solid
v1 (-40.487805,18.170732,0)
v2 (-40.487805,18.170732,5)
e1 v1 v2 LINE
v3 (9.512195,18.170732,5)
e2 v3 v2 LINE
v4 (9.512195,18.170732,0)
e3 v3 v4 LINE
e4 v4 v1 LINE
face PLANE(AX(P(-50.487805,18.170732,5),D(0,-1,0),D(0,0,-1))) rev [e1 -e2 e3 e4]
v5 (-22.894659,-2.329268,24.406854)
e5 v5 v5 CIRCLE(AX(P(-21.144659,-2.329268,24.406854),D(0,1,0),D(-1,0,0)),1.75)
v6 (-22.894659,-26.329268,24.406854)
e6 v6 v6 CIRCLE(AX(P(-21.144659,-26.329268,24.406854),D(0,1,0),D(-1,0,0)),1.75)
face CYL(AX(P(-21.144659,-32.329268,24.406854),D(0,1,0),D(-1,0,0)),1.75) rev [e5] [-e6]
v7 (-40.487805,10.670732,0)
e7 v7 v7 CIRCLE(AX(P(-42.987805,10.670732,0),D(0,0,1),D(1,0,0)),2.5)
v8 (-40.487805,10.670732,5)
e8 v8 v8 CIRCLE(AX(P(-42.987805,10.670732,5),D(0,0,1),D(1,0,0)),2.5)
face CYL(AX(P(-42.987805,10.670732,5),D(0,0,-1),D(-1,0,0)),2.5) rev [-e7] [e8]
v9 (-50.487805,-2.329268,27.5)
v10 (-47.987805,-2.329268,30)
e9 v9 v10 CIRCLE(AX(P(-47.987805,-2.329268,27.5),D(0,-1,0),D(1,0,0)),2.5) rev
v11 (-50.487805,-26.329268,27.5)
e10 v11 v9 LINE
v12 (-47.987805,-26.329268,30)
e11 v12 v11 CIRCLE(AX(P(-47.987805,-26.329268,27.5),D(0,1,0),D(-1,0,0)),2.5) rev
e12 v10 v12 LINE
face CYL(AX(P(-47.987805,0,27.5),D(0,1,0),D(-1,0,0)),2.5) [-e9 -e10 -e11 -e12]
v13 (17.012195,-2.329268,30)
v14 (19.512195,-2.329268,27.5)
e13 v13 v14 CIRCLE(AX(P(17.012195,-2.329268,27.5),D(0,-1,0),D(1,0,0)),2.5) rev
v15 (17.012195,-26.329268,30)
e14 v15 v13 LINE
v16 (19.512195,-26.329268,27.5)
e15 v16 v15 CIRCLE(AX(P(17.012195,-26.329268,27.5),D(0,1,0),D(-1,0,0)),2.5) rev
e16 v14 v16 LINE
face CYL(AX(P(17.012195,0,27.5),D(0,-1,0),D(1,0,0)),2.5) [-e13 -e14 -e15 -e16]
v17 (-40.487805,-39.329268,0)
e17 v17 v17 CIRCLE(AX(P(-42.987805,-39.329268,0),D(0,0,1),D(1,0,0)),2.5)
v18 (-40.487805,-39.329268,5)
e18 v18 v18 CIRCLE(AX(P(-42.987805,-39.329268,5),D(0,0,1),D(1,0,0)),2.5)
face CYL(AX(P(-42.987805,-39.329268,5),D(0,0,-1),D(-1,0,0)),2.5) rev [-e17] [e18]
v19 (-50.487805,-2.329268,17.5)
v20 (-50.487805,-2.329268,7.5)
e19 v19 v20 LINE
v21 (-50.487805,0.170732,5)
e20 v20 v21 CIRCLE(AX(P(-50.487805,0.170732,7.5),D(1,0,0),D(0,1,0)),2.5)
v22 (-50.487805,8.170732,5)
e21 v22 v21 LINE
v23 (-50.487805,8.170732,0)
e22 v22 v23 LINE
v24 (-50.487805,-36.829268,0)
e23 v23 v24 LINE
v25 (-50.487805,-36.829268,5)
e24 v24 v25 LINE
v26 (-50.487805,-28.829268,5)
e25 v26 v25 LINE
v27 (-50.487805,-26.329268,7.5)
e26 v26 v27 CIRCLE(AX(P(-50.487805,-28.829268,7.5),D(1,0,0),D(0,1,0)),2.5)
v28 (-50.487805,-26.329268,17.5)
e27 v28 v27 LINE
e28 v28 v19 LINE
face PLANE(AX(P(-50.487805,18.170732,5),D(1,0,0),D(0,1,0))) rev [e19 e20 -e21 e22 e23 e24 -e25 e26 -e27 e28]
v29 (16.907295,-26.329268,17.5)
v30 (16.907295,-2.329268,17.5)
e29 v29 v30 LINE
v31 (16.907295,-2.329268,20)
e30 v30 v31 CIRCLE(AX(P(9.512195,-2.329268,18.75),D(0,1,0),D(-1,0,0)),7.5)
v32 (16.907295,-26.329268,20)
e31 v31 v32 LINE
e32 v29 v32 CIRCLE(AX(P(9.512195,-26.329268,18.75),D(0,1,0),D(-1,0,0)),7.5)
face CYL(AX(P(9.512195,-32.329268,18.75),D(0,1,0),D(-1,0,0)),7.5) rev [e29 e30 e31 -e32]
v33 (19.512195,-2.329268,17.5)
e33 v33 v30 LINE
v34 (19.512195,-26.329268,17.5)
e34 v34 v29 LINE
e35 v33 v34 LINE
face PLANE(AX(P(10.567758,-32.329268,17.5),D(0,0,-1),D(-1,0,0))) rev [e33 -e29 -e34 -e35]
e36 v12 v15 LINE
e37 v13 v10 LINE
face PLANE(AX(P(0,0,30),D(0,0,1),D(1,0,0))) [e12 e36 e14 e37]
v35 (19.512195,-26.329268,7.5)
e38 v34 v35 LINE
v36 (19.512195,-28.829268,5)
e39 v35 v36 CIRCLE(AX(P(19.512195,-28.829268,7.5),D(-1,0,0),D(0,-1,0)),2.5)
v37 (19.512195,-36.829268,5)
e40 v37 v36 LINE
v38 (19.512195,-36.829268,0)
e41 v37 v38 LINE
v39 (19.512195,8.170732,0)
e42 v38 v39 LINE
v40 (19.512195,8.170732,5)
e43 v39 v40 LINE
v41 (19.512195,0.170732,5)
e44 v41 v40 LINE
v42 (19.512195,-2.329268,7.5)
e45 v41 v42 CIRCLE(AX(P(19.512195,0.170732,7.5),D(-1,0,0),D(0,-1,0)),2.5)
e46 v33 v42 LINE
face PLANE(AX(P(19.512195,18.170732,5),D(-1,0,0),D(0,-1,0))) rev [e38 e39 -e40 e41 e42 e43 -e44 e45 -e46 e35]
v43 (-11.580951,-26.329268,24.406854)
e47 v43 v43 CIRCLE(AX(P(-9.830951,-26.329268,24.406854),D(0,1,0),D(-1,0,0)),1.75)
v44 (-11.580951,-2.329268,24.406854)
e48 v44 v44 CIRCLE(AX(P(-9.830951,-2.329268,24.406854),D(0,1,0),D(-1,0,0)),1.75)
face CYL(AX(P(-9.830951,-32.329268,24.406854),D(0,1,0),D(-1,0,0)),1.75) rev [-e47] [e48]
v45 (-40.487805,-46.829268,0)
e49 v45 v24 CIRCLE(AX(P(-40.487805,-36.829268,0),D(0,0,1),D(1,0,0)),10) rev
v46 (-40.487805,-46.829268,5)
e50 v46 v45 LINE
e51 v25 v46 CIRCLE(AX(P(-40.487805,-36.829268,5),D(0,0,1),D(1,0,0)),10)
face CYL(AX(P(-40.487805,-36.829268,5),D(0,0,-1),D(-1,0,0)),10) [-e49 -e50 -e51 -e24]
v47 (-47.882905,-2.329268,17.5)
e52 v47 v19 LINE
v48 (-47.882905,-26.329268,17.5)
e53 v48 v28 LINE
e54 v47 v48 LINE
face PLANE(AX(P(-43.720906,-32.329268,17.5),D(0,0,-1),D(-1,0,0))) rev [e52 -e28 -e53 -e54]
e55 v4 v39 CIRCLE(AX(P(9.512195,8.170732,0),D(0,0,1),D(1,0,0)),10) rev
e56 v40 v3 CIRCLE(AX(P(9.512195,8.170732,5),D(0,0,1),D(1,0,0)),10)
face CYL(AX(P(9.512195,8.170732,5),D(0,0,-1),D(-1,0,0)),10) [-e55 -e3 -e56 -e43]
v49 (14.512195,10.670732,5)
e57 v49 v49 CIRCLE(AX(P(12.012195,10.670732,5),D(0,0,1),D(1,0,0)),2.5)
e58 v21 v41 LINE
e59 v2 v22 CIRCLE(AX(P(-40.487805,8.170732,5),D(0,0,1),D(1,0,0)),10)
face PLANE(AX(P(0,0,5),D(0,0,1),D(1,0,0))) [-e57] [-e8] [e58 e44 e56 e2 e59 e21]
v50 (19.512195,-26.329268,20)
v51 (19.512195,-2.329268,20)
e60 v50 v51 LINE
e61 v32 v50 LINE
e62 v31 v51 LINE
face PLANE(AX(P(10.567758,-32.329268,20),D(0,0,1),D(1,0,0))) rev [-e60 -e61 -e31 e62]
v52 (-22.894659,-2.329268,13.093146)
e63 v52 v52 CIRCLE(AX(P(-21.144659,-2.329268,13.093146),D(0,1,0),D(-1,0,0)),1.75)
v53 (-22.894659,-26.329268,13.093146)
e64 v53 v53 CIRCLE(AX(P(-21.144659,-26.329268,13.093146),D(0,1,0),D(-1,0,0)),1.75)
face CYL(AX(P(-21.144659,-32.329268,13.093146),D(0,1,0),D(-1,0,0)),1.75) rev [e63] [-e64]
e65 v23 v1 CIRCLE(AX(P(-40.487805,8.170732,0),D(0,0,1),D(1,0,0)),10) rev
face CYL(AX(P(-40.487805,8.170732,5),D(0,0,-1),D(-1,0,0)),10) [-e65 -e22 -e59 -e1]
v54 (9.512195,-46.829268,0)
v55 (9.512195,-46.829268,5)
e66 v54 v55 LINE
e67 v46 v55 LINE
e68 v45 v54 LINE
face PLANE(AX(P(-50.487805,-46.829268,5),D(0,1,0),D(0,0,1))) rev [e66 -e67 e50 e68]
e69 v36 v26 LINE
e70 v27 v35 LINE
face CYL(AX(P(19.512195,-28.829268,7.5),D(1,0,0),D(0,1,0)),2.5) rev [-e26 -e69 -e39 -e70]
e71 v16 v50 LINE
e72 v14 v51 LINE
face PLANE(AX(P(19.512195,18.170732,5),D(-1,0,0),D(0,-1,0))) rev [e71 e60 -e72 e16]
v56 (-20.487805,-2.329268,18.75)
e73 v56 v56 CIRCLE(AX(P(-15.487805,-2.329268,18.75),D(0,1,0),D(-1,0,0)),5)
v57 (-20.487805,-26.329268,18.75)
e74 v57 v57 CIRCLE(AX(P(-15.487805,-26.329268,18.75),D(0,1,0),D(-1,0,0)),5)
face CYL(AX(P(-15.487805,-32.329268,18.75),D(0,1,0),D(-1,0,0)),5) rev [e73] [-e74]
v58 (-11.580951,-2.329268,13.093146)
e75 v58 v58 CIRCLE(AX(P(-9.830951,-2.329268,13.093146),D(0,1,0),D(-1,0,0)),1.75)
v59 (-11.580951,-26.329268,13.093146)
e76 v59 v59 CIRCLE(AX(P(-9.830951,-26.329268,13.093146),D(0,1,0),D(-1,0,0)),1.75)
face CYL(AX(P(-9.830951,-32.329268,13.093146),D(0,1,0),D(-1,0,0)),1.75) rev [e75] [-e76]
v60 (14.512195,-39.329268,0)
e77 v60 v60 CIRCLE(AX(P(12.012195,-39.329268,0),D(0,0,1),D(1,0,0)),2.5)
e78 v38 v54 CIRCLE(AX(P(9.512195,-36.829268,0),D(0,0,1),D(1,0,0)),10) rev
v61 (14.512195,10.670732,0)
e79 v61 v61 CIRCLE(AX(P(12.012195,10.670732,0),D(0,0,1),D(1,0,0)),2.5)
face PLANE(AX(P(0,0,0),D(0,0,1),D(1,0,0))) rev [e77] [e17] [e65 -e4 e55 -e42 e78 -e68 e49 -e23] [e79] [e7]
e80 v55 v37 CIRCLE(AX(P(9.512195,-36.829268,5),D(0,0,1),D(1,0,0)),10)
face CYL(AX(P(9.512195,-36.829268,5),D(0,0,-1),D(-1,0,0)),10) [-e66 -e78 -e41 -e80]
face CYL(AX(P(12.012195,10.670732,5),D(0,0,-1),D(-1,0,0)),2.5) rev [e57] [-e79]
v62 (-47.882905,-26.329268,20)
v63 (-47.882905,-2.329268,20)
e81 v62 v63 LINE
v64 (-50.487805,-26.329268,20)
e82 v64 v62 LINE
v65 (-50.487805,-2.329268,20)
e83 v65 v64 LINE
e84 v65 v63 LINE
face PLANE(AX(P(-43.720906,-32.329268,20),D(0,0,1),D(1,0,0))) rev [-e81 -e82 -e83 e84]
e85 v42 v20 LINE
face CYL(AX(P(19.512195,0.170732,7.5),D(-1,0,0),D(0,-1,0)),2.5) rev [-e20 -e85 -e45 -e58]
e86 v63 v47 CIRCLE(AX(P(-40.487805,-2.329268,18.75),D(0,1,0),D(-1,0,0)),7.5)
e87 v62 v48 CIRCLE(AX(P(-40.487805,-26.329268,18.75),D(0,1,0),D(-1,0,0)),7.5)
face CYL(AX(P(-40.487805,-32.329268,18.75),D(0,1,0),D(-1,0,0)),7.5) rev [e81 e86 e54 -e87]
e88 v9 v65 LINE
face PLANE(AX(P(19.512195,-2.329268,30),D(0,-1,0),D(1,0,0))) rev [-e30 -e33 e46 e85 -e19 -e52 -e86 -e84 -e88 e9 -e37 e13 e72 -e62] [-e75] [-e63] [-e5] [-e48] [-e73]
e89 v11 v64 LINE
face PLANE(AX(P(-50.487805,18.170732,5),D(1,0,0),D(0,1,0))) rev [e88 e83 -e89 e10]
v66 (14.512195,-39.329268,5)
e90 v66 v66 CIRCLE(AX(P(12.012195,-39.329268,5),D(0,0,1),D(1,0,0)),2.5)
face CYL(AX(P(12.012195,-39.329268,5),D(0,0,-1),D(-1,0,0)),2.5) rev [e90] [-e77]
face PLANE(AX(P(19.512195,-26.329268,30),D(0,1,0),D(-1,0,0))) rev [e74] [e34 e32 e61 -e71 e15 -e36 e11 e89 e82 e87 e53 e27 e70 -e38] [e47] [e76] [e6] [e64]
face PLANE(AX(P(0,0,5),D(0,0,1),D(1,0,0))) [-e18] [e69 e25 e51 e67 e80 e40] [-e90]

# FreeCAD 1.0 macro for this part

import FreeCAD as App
import Part
import Sketcher
from FreeCAD import Vector


def edges_at(feature, points):
    """Names of the edges that pass closest to the given points."""
    edges = feature.Shape.Edges
    near = lambda p: min(range(len(edges)), key=lambda i: edges[i].distToShape(Part.Vertex(*p))[0])
    return sorted({f"Edge{near(p) + 1}" for p in points})


def add_polygon(sketch, points):
    """Adds a closed chain of lines whose ends are joined by coincident constraints."""
    first, n = sketch.GeometryCount, len(points)
    for a, b in zip(points, points[1:] + points[:1]):
        sketch.addGeometry(Part.LineSegment(App.Vector(*a, 0), App.Vector(*b, 0)), False)
    for i in range(n):
        sketch.addConstraint(Sketcher.Constraint("Coincident", first + i, 2, first + (i + 1) % n, 1))

doc = App.newDocument("Part")
body = doc.addObject("PartDesign::Body", "Body")

# Sketch on XY plane
sketch1 = body.newObject("Sketcher::SketchObject", "Sketch")
sketch1.AttachmentSupport = (doc.getObject("XY_Plane"), [""])
sketch1.MapMode = "FlatFace"
add_polygon(sketch1, [(-50.5, 18.2), (-50.5, -46.8), (19.5, -46.8), (19.5, 18.2)])  # lines 0-3
sketch1.addGeometry(Part.Circle(Vector(-43, -39.3, 0), Vector(0, 0, 1), 2.5), False)  # 4
sketch1.addGeometry(Part.Circle(Vector(12, -39.3, 0), Vector(0, 0, 1), 2.5), False)  # 5
sketch1.addGeometry(Part.Circle(Vector(-43, 10.7, 0), Vector(0, 0, 1), 2.5), False)  # 6
sketch1.addGeometry(Part.Circle(Vector(12, 10.7, 0), Vector(0, 0, 1), 2.5), False)  # 7
sketch1.addConstraint([
    Sketcher.Constraint("Vertical", 0),
    Sketcher.Constraint("Horizontal", 1),
    Sketcher.Constraint("Vertical", 2),
    Sketcher.Constraint("Horizontal", 3),
    Sketcher.Constraint("Equal", 4, 5),
    Sketcher.Constraint("Equal", 5, 6),
    Sketcher.Constraint("Equal", 6, 7),
    Sketcher.Constraint("Horizontal", 4, 3, 5, 3),
    Sketcher.Constraint("Horizontal", 6, 3, 7, 3),
    Sketcher.Constraint("Vertical", 4, 3, 6, 3),
    Sketcher.Constraint("Vertical", 5, 3, 7, 3),
    Sketcher.Constraint("Diameter", 4, 5.0),
    Sketcher.Constraint("DistanceX", 1, 1, 1, 2, 70.0),
    Sketcher.Constraint("DistanceY", 0, 2, 0, 1, 65.0),
    Sketcher.Constraint("DistanceX", 4, 3, 5, 3, 55.0),
    Sketcher.Constraint("DistanceY", 4, 3, 6, 3, 50.0),
    Sketcher.Constraint("DistanceX", 0, 2, 4, 3, 7.5),
    Sketcher.Constraint("DistanceY", 0, 2, 4, 3, 7.5),
    Sketcher.Constraint("DistanceY", 4, 3, -1, 1, 39.329268),
    Sketcher.Constraint("DistanceX", 4, 3, -1, 1, 42.987805),
])
pad1 = body.newObject("PartDesign::Pad", "Pad")
pad1.Profile = sketch1
pad1.Length = 5
doc.recompute()

fillet = body.newObject("PartDesign::Fillet", "Fillet")
fillet.Base = (pad1, edges_at(pad1, [
    (-50.488, 18.171, 2.5),
    (19.512, 18.171, 2.5),
    (19.512, -46.829, 2.5),
    (-50.488, -46.829, 2.5),
]))
fillet.Radius = 10

# Sketch on XY plane
sketch2 = body.newObject("Sketcher::SketchObject", "Sketch001")
sketch2.AttachmentSupport = (doc.getObject("XY_Plane"), [""])
sketch2.MapMode = "FlatFace"
sketch2.AttachmentOffset = App.Placement(Vector(0, 0, 5), App.Rotation())
add_polygon(sketch2, [(-50, -2), (-50, -26), (20, -26), (20, -2)])  # lines 0-3
sketch2.addConstraint([
    Sketcher.Constraint("Vertical", 0),
    Sketcher.Constraint("Horizontal", 1),
    Sketcher.Constraint("Vertical", 2),
    Sketcher.Constraint("Horizontal", 3),
    Sketcher.Constraint("DistanceX", 1, 1, 1, 2, 70.0),
    Sketcher.Constraint("DistanceY", 0, 2, 0, 1, 24.0),
    Sketcher.Constraint("DistanceY", 0, 2, -1, 1, 26.329268),
    Sketcher.Constraint("DistanceX", 0, 2, -1, 1, 50.487805),
])
pad2 = body.newObject("PartDesign::Pad", "Pad001")
pad2.Profile = sketch2
pad2.Length = 25
doc.recompute()

fillet2 = body.newObject("PartDesign::Fillet", "Fillet001")
fillet2.Base = (pad2, edges_at(pad2, [(-15.488, -26.329, 5), (-15.488, -2.329, 5)]))
fillet2.Radius = 2.5

# Sketch on XZ plane
sketch3 = body.newObject("Sketcher::SketchObject", "Sketch002")
sketch3.AttachmentSupport = (doc.getObject("XZ_Plane"), [""])
sketch3.MapMode = "FlatFace"
sketch3.AttachmentOffset = App.Placement(Vector(0, 0, 2.329268), App.Rotation())
sketch3.addGeometry([
    Part.Circle(Vector(-15, 19, 0), Vector(0, 0, 1), 5),
    Part.Circle(Vector(-40, 19, 0), Vector(0, 0, 1), 8),
    Part.Circle(Vector(10, 19, 0), Vector(0, 0, 1), 8),
], False)
sketch3.addConstraint([
    Sketcher.Constraint("Equal", 1, 2),
    Sketcher.Constraint("Horizontal", 0, 3, 1, 3),
    Sketcher.Constraint("Horizontal", 1, 3, 2, 3),
    Sketcher.Constraint("Diameter", 0, 10.0),
    Sketcher.Constraint("Diameter", 1, 15.0),
    Sketcher.Constraint("DistanceX", 1, 3, 0, 3, 25.0),
    Sketcher.Constraint("DistanceX", 0, 3, 2, 3, 25.0),
    Sketcher.Constraint("DistanceY", -1, 1, 0, 3, 18.75),
    Sketcher.Constraint("DistanceX", 0, 3, -1, 1, 15.487805),
])
pocket1 = body.newObject("PartDesign::Pocket", "Pocket")
pocket1.Profile = sketch3
pocket1.Length = 30
pocket1.Reversed = True

# Sketch on XZ plane
sketch4 = body.newObject("Sketcher::SketchObject", "Sketch003")
sketch4.AttachmentSupport = (doc.getObject("XZ_Plane"), [""])
sketch4.MapMode = "FlatFace"
sketch4.AttachmentOffset = App.Placement(Vector(0, 0, 2.329268), App.Rotation())
sketch4.addGeometry([
    Part.Circle(Vector(-21.1, 13.1, 0), Vector(0, 0, 1), 1.8),
    Part.Circle(Vector(-9.8, 13.1, 0), Vector(0, 0, 1), 1.8),
    Part.Circle(Vector(-9.8, 24.4, 0), Vector(0, 0, 1), 1.8),
    Part.Circle(Vector(-21.1, 24.4, 0), Vector(0, 0, 1), 1.8),
], False)
sketch4.addConstraint([
    Sketcher.Constraint("Equal", 0, 1),
    Sketcher.Constraint("Equal", 1, 2),
    Sketcher.Constraint("Equal", 2, 3),
    Sketcher.Constraint("Horizontal", 0, 3, 1, 3),
    Sketcher.Constraint("Horizontal", 2, 3, 3, 3),
    Sketcher.Constraint("Vertical", 1, 3, 2, 3),
    Sketcher.Constraint("Vertical", 0, 3, 3, 3),
    Sketcher.Constraint("Diameter", 0, 3.5),
    Sketcher.Constraint("DistanceX", 0, 3, -1, 1, 21.144659),
    Sketcher.Constraint("DistanceX", 1, 3, -1, 1, 9.830951),
    Sketcher.Constraint("DistanceY", 1, 3, 2, 3, 11.313708),
    Sketcher.Constraint("DistanceY", -1, 1, 0, 3, 13.093146),
])
pocket2 = body.newObject("PartDesign::Pocket", "Pocket001")
pocket2.Profile = sketch4
pocket2.Length = 30
pocket2.Reversed = True
doc.recompute()

fillet3 = body.newObject("PartDesign::Fillet", "Fillet002")
fillet3.Base = (pocket2, edges_at(pocket2, [(-50.488, -14.329, 30), (19.512, -14.329, 30)]))
fillet3.Radius = 2.5

# Sketch on XZ plane
sketch5 = body.newObject("Sketcher::SketchObject", "Sketch004")
sketch5.AttachmentSupport = (doc.getObject("XZ_Plane"), [""])
sketch5.MapMode = "FlatFace"
sketch5.AttachmentOffset = App.Placement(Vector(0, 0, 2.329268), App.Rotation())
add_polygon(sketch5, [(-52.3, 17.5), (-52.3, 20), (-43.7, 20), (-43.7, 17.5)])  # lines 0-3
add_polygon(sketch5, [(10.6, 17.5), (10.6, 20), (23.5, 20), (23.5, 17.5)])  # lines 4-7
sketch5.addConstraint([
    Sketcher.Constraint("Vertical", 0),
    Sketcher.Constraint("Horizontal", 1),
    Sketcher.Constraint("Vertical", 2),
    Sketcher.Constraint("Horizontal", 3),
    Sketcher.Constraint("Vertical", 4),
    Sketcher.Constraint("Horizontal", 5),
    Sketcher.Constraint("Vertical", 6),
    Sketcher.Constraint("Horizontal", 7),
    Sketcher.Constraint("Horizontal", 1, 2, 4, 2),
    Sketcher.Constraint("Horizontal", 3, 2, 6, 2),
    Sketcher.Constraint("DistanceY", 0, 1, 0, 2, 2.5),
    Sketcher.Constraint("DistanceY", -1, 1, 0, 2, 20.0),
    Sketcher.Constraint("DistanceX", 1, 1, 1, 2, 8.533797),
    Sketcher.Constraint("DistanceX", 5, 1, 5, 2, 12.888874),
    Sketcher.Constraint("DistanceX", -1, 1, 4, 2, 10.567758),
    Sketcher.Constraint("DistanceX", 0, 2, 4, 2, 62.822462),
])
pocket3 = body.newObject("PartDesign::Pocket", "Pocket002")
pocket3.Profile = sketch5
pocket3.Length = 30
pocket3.Reversed = True

doc.recompute()
